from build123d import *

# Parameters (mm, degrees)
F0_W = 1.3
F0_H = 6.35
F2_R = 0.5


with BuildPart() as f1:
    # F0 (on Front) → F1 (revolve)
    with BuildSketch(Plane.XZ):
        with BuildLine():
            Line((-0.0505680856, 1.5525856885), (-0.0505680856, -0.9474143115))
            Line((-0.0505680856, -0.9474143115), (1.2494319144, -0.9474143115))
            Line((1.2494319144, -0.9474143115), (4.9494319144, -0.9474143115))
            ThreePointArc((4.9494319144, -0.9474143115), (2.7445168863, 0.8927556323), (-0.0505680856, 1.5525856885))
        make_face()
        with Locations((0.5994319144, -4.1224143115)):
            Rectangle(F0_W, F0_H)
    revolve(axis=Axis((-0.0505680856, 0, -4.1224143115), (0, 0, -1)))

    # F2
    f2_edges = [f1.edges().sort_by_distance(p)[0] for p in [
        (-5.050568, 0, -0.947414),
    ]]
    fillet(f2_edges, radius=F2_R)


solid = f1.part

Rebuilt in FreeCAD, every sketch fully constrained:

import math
import FreeCAD as App
import Part
import Sketcher
from FreeCAD import Vector
Q = App.Units.Quantity


def edges_at(feature, points):
    """Names of the edges that pass closest to the given points."""
    edges = feature.Shape.Edges
    near = lambda p: min(range(len(edges)), key=lambda i: edges[i].distToShape(Part.Vertex(*p))[0])
    return sorted({f"Edge{near(p) + 1}" for p in points})

doc = App.newDocument("Part")
body = doc.addObject("PartDesign::Body", "Body")

sketch1 = doc.addObject("Sketcher::SketchObject", "Sketch")
body.addObject(sketch1)
sketch1.AttachmentSupport = (doc.XZ_Plane, [""])
sketch1.MapMode = "FlatFace"
sketch1.addGeometry([
    Part.LineSegment(Vector(-0.1, 1.6, 0), Vector(-0.1, -7.3, 0)),
    Part.LineSegment(Vector(-0.1, -7.3, 0), Vector(1.2, -7.3, 0)),
    Part.LineSegment(Vector(1.2, -7.3, 0), Vector(1.2, -0.9, 0)),
    Part.LineSegment(Vector(1.2, -0.9, 0), Vector(4.9, -0.9, 0)),
    Part.ArcOfCircle(Part.Circle(Vector(-0.1, -4.7, 0), Vector(0, 0, 1), 6.2), math.radians(37), math.radians(90)),
], False)
sketch1.addGeometry(Part.LineSegment(Vector(-0.1, 1.6, 0), Vector(-0.1, -7.3, 0)), True)
sketch1.addConstraint([
    Sketcher.Constraint("Coincident", 0, 2, 1, 1),
    Sketcher.Constraint("Coincident", 1, 2, 2, 1),
    Sketcher.Constraint("Coincident", 2, 2, 3, 1),
    Sketcher.Constraint("Coincident", 3, 2, 4, 1),
    Sketcher.Constraint("Coincident", 4, 2, 0, 1),
    Sketcher.Constraint("Vertical", 0),
    Sketcher.Constraint("Horizontal", 1),
    Sketcher.Constraint("Vertical", 2),
    Sketcher.Constraint("Horizontal", 3),
    Sketcher.Constraint("Vertical", 5),
    Sketcher.Constraint("Coincident", 5, 1, 4, 2),
    Sketcher.Constraint("Horizontal", 1, 2, 5, 2),
    Sketcher.Constraint("Vertical", 4, 3, 0, 2),
    Sketcher.Constraint("Radius", 4, Q("6.25 mm")),
    Sketcher.Constraint("DistanceX", 1, 1, 1, 2, Q("1.3 mm")),
    Sketcher.Constraint("DistanceX", 3, 1, 3, 2, Q("3.7 mm")),
    Sketcher.Constraint("DistanceY", 0, 2, 0, 1, Q("8.85 mm")),
    Sketcher.Constraint("DistanceX", 4, 3, -1, 1, Q("0.050568 mm")),
    Sketcher.Constraint("DistanceY", 4, 3, -1, 1, Q("4.697414 mm")),
])
revolution = doc.addObject("PartDesign::Revolution", "Revolution")
body.addObject(revolution)
revolution.Profile = sketch1
revolution.ReferenceAxis = (sketch1, ["Axis0"])
revolution.Angle = 360
doc.recompute()

fillet = doc.addObject("PartDesign::Fillet", "Fillet")
body.addObject(fillet)
fillet.Base = (revolution, edges_at(revolution, [(-5.051, 0, -0.947)]))
fillet.Radius = 0.5

doc.recompute()
